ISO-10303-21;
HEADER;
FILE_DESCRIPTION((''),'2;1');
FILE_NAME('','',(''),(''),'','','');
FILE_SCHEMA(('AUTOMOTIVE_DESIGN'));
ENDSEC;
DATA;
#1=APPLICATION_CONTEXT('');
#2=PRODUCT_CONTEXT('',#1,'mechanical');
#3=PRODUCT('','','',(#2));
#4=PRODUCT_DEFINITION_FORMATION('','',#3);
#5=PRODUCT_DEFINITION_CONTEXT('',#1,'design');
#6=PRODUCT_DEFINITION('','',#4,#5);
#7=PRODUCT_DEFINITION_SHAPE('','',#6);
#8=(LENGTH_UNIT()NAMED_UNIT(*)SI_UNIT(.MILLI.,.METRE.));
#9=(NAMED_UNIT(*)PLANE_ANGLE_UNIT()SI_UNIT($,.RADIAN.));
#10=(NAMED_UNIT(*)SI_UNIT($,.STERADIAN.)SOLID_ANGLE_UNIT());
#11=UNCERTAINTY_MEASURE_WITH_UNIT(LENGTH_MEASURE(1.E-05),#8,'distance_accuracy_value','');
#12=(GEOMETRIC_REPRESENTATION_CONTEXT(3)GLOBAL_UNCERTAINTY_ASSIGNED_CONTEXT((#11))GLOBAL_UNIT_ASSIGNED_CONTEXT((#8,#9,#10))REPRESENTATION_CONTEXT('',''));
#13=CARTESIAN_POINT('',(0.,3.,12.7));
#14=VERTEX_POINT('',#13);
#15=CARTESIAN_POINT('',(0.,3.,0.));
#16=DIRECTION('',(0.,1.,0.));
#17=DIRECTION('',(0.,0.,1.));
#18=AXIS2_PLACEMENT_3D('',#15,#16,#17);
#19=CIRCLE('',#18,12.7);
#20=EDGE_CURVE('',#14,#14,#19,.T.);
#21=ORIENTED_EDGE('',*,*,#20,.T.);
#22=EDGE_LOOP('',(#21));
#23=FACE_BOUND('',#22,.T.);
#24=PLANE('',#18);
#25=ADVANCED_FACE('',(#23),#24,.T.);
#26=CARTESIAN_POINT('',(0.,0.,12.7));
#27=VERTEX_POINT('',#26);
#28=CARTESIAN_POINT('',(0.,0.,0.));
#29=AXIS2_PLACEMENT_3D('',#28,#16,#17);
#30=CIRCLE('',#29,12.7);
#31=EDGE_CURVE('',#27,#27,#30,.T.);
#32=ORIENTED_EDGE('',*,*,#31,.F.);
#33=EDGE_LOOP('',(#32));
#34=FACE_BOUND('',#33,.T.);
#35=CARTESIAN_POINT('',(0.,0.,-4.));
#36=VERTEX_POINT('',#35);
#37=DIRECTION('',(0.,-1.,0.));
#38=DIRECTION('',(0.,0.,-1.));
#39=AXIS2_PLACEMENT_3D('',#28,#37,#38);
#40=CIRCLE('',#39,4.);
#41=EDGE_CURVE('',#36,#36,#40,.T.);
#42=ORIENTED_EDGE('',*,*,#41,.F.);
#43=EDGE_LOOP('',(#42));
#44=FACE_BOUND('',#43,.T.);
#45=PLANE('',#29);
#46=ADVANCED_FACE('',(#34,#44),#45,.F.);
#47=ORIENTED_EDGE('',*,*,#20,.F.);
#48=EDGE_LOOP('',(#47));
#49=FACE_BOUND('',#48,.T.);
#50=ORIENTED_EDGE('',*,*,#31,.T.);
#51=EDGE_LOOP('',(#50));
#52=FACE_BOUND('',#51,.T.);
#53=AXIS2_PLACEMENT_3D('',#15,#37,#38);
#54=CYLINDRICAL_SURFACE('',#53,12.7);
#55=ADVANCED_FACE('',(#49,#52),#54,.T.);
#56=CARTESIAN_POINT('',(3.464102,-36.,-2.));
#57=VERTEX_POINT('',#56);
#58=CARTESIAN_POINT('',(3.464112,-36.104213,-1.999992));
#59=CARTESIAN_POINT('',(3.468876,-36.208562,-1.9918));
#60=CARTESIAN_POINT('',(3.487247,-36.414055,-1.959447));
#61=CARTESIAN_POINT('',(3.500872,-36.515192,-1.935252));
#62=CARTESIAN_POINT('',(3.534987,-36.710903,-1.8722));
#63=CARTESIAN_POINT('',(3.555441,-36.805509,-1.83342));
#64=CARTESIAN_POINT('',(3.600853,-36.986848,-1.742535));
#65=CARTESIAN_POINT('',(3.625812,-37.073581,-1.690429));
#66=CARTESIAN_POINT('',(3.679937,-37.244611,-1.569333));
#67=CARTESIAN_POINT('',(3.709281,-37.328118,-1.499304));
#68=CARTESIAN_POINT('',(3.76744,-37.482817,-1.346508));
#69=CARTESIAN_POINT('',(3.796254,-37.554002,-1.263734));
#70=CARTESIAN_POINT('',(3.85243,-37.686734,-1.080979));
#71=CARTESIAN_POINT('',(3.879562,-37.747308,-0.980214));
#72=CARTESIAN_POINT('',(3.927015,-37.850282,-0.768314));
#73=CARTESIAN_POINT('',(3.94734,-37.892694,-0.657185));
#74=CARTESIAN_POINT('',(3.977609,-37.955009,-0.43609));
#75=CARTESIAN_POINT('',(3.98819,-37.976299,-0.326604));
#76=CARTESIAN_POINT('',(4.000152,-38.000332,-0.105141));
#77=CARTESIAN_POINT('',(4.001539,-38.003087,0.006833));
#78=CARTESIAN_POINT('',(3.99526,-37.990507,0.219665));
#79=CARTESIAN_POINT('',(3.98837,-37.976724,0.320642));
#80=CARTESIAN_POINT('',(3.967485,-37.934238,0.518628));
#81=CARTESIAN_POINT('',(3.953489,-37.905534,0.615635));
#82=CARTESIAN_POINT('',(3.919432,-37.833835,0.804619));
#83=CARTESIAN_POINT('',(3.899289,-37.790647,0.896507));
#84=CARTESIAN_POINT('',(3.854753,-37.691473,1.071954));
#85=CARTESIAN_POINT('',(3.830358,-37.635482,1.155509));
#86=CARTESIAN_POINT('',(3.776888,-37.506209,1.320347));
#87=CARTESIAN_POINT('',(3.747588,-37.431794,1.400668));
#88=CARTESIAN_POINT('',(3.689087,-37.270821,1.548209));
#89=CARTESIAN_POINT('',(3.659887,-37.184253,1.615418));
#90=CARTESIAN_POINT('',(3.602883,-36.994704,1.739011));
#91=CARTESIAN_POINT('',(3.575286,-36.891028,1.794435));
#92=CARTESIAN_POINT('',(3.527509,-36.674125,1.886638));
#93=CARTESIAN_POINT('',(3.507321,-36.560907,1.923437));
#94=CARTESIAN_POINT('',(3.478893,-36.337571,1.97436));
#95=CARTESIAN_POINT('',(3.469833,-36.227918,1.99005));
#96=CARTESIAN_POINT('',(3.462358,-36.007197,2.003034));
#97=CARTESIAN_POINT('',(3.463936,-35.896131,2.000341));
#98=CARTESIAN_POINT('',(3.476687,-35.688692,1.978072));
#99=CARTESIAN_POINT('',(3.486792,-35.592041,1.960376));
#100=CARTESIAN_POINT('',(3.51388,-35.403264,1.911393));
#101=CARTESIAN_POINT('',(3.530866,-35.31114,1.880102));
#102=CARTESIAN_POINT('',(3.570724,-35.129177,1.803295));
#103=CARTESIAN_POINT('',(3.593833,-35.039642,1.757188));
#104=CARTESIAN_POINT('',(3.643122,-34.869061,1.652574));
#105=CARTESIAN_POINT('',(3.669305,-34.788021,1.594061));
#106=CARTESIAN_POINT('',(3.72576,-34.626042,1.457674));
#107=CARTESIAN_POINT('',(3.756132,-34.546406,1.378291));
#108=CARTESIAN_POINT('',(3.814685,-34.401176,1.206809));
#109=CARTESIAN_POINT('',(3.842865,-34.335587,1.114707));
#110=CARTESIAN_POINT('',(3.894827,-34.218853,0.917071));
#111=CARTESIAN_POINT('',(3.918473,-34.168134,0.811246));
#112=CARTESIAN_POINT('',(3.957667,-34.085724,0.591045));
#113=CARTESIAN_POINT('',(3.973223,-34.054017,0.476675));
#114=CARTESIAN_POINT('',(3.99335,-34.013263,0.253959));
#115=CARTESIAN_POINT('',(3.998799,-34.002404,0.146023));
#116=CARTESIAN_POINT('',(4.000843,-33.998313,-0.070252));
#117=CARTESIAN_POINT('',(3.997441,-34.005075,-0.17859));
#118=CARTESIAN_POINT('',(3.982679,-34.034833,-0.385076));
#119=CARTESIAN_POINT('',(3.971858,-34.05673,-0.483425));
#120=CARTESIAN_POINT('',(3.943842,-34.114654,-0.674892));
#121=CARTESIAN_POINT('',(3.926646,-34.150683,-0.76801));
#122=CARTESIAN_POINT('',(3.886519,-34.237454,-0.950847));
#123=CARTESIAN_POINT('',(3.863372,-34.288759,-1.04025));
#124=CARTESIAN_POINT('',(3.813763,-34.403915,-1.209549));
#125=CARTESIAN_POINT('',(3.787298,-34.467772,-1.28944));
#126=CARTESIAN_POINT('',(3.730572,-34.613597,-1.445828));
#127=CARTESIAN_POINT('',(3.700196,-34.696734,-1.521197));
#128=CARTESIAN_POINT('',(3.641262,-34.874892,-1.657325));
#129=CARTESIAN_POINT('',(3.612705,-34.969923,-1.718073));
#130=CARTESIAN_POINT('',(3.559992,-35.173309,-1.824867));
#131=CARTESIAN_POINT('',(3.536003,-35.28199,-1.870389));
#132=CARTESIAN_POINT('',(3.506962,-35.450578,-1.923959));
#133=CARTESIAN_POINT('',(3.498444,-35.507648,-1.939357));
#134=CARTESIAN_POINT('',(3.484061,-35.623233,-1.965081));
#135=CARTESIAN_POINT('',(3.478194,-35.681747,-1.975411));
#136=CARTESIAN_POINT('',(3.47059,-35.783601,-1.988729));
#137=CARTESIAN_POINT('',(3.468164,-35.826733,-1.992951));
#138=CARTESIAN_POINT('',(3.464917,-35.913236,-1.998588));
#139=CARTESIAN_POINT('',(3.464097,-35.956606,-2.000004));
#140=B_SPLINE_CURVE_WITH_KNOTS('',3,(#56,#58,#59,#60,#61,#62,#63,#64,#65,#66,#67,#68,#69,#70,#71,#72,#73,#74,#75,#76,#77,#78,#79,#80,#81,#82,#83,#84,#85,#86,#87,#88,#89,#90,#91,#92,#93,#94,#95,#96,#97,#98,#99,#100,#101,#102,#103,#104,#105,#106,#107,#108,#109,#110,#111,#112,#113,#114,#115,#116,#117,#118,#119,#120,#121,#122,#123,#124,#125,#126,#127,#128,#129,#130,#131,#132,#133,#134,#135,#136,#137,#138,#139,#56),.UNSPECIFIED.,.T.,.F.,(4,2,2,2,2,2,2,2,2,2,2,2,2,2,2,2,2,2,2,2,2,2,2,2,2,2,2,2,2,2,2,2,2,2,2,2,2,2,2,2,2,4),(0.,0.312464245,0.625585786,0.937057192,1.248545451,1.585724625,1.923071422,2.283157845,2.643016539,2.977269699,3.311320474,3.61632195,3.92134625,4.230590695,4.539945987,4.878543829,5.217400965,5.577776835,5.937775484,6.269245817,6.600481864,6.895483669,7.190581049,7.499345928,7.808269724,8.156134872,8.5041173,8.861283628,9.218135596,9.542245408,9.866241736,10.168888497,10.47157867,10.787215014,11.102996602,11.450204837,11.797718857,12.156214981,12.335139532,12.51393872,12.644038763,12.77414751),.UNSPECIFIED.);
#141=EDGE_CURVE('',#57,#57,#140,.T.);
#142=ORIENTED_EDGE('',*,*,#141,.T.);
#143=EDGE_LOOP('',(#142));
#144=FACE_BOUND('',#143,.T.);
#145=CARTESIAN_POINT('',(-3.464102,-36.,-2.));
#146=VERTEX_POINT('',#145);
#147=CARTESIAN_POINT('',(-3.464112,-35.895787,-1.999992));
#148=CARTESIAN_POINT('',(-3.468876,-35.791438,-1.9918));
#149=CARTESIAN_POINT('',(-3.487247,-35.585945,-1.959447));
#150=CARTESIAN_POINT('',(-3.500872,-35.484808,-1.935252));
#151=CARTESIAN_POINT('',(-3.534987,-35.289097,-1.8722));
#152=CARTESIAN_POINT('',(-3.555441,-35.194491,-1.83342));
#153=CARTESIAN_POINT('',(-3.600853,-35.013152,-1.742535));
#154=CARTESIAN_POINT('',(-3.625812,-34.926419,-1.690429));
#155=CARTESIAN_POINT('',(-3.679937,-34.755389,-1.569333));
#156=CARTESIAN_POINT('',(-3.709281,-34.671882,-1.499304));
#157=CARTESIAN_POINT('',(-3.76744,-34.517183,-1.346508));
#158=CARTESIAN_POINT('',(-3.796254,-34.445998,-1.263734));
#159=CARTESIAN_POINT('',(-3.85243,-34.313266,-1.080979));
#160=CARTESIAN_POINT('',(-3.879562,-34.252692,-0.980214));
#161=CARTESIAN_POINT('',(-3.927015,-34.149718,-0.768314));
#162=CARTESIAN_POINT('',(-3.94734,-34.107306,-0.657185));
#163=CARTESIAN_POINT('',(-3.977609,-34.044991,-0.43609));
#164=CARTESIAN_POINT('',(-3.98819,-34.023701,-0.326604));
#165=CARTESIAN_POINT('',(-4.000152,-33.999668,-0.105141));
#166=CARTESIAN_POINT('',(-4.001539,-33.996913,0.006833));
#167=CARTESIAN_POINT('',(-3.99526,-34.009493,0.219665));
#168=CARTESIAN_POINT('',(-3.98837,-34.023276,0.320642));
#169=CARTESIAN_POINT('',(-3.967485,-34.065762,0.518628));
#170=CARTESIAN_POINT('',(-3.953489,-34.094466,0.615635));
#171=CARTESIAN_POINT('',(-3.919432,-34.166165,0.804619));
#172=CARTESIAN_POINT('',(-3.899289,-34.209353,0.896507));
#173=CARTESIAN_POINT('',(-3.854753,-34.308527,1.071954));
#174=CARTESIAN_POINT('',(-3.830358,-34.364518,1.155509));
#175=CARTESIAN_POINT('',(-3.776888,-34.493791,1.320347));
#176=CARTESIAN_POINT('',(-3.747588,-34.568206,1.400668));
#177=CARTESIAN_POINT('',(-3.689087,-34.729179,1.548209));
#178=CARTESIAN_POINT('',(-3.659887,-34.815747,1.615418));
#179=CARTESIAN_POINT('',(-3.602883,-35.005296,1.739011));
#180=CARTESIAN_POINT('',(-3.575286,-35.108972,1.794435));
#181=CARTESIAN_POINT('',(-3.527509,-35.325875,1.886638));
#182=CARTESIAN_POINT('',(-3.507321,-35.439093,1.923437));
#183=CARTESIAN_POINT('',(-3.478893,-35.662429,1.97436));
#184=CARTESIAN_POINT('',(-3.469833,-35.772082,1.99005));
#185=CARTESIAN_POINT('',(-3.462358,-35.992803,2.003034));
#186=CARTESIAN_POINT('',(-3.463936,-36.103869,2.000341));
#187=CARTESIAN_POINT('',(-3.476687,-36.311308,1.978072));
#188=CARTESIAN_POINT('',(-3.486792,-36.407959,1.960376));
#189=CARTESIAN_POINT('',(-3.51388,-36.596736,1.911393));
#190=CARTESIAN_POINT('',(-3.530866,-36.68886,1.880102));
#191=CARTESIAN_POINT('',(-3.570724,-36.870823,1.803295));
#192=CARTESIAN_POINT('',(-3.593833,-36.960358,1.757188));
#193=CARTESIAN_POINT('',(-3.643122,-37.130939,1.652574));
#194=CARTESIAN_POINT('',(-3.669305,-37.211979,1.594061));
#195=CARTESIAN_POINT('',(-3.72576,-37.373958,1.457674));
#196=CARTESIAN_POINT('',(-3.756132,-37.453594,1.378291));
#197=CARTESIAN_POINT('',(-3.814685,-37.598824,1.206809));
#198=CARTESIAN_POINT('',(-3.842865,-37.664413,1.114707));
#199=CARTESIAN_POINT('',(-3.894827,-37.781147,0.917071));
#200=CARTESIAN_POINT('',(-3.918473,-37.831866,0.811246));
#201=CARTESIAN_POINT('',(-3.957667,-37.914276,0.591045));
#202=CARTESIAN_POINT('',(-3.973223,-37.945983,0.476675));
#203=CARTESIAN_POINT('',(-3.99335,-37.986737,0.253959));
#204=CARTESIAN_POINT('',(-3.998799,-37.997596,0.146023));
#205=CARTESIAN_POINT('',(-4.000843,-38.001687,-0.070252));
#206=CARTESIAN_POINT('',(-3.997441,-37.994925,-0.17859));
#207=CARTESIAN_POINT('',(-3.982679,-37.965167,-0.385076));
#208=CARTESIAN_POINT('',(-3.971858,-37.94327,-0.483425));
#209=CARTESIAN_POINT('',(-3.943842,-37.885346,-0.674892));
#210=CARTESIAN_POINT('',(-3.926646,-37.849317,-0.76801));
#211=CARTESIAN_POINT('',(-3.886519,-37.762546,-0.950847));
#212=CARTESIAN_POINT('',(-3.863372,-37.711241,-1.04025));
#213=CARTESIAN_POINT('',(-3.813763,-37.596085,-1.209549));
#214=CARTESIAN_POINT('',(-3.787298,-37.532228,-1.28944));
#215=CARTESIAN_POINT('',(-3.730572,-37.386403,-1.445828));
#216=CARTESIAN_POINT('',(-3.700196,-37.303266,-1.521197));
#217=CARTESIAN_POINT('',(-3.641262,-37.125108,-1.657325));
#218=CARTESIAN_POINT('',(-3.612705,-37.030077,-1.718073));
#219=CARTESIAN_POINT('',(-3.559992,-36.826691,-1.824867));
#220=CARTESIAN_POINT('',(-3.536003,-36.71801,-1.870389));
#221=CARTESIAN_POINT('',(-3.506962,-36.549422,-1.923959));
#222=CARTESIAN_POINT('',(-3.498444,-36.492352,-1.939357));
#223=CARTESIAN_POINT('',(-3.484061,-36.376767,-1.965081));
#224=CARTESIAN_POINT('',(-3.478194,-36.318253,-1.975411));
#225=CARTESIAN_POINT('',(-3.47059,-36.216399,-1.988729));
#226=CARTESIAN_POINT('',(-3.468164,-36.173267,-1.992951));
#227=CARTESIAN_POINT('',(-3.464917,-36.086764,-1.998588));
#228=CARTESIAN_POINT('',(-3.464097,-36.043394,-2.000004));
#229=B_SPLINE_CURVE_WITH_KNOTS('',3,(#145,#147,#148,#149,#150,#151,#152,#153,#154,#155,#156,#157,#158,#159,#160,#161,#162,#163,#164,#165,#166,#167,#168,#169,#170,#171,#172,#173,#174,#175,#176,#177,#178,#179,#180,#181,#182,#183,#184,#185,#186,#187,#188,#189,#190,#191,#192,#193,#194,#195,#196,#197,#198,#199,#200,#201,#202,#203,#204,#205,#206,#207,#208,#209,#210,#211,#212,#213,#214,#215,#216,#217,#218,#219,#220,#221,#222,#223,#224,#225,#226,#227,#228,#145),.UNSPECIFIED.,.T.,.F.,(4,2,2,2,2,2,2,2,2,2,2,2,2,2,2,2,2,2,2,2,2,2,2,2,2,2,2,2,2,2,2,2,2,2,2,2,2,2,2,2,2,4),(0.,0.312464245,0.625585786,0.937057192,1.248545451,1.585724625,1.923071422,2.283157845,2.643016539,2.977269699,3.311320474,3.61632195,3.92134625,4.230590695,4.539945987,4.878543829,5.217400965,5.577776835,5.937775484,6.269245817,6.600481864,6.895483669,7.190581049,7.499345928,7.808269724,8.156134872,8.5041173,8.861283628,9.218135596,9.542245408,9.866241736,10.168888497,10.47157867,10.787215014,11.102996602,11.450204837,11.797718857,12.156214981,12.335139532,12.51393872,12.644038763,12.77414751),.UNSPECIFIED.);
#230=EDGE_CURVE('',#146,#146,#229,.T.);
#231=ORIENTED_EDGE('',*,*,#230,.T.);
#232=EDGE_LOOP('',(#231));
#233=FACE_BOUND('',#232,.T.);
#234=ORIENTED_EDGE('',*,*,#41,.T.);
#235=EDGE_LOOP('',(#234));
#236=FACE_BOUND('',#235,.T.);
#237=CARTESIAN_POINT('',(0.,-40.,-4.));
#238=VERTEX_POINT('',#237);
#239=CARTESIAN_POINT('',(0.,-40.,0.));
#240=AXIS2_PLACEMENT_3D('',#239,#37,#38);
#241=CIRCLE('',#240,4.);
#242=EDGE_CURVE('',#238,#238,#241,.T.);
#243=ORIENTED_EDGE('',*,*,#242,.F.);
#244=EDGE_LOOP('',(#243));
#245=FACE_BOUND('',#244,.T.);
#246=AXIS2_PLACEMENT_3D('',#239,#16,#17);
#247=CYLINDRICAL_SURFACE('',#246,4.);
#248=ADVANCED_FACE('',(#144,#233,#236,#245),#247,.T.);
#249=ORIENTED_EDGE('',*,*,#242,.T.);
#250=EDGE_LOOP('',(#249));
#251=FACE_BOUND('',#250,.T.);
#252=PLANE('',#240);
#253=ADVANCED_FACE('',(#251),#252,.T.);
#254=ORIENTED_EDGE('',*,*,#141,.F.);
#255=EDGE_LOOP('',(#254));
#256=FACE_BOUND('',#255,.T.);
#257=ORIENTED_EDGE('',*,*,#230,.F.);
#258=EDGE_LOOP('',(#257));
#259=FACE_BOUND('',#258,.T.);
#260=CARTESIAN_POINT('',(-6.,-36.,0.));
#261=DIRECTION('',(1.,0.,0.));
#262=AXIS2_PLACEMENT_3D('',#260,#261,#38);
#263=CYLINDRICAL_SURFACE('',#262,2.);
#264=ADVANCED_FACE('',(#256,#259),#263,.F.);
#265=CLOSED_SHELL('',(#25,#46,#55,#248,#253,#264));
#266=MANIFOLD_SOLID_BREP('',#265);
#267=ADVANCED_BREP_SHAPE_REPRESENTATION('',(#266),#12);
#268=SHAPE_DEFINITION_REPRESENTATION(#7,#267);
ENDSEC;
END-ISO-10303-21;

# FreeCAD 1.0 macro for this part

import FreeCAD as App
import Part
import Sketcher
from FreeCAD import Vector

doc = App.newDocument("Part")
body = doc.addObject("PartDesign::Body", "Body")

# Sketch on XZ plane
sketch1 = body.newObject("Sketcher::SketchObject", "Sketch")
sketch1.AttachmentSupport = (doc.getObject("XZ_Plane"), [""])
sketch1.MapMode = "FlatFace"
sketch1.addGeometry(Part.Circle(Vector(0, 0, 0), Vector(0, 0, 1), 13), False)
sketch1.addConstraint(Sketcher.Constraint("Coincident", 0, 3, -1, 1))
sketch1.addConstraint(Sketcher.Constraint("Diameter", 0, 25.4))
pad1 = body.newObject("PartDesign::Pad", "Pad")
pad1.Profile = sketch1
pad1.Length = 3
pad1.Reversed = True

# Sketch on XZ plane
sketch2 = body.newObject("Sketcher::SketchObject", "Sketch001")
sketch2.AttachmentSupport = (doc.getObject("XZ_Plane"), [""])
sketch2.MapMode = "FlatFace"
sketch2.addGeometry(Part.Circle(Vector(0, 0, 0), Vector(0, 0, 1), 4), False)
sketch2.addConstraint(Sketcher.Constraint("Coincident", 0, 3, -1, 1))
sketch2.addConstraint(Sketcher.Constraint("Diameter", 0, 8.0))
pad2 = body.newObject("PartDesign::Pad", "Pad001")
pad2.Profile = sketch2
pad2.Length = 40

# Sketch on YZ plane
sketch3 = body.newObject("Sketcher::SketchObject", "Sketch002")
sketch3.AttachmentSupport = (doc.getObject("YZ_Plane"), [""])
sketch3.MapMode = "FlatFace"
sketch3.AttachmentOffset = App.Placement(Vector(0, 0, 4), App.Rotation())
sketch3.addGeometry(Part.Circle(Vector(-36, 0, 0), Vector(0, 0, 1), 2), False)
sketch3.addConstraint(Sketcher.Constraint("PointOnObject", 0, 3, -1))
sketch3.addConstraint(Sketcher.Constraint("Diameter", 0, 4.0))
sketch3.addConstraint(Sketcher.Constraint("DistanceX", 0, 3, -1, 1, 36.0))
pocket1 = body.newObject("PartDesign::Pocket", "Pocket")
pocket1.Profile = sketch3
pocket1.Length = 10

doc.recompute()
